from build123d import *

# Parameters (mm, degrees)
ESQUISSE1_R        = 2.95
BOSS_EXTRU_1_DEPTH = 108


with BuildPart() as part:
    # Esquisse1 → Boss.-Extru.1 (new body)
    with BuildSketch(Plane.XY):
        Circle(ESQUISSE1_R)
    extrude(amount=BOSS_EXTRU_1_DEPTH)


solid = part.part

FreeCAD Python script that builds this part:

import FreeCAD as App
import Part
import Sketcher

doc = App.newDocument("Part")
body = doc.addObject("PartDesign::Body", "Body")

# Sketch on XY plane
sketch1 = body.newObject("Sketcher::SketchObject", "Sketch")
sketch1.AttachmentSupport = (doc.getObject("XY_Plane"), [""])
sketch1.MapMode = "FlatFace"
sketch1.addGeometry(Part.Circle(App.Vector(0, 0, 0), App.Vector(0, 0, 1), 3), False)
sketch1.addConstraint(Sketcher.Constraint("Coincident", 0, 3, -1, 1))
sketch1.addConstraint(Sketcher.Constraint("Diameter", 0, 5.9))
pad1 = body.newObject("PartDesign::Pad", "Pad")
pad1.Profile = sketch1
pad1.Length = 108

doc.recompute()
